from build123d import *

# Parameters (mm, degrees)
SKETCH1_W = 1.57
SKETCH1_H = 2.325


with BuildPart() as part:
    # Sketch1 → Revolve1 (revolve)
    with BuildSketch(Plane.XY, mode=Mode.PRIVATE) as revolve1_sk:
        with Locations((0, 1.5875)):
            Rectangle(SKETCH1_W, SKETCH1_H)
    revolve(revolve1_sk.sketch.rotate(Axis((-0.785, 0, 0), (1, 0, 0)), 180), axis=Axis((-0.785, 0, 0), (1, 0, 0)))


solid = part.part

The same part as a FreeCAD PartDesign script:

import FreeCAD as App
import Part
import Sketcher

V = App.Vector
Q = App.Units.Quantity

doc = App.newDocument("Part")
body = doc.addObject("PartDesign::Body", "Body")

sketch1 = doc.addObject("Sketcher::SketchObject", "Sketch")
body.addObject(sketch1)
sketch1.AttachmentSupport = (doc.XY_Plane, [""])
sketch1.MapMode = "FlatFace"
sketch1.addGeometry([
    Part.LineSegment(V(-0.8, 2.8, 0), V(-0.8, 0.4, 0)),
    Part.LineSegment(V(-0.8, 0.4, 0), V(0.8, 0.4, 0)),
    Part.LineSegment(V(0.8, 0.4, 0), V(0.8, 2.8, 0)),
    Part.LineSegment(V(0.8, 2.8, 0), V(-0.8, 2.8, 0)),
], False)
sketch1.addConstraint([
    Sketcher.Constraint("Coincident", 0, 2, 1, 1),
    Sketcher.Constraint("Coincident", 1, 2, 2, 1),
    Sketcher.Constraint("Coincident", 2, 2, 3, 1),
    Sketcher.Constraint("Coincident", 3, 2, 0, 1),
    Sketcher.Constraint("Vertical", 0),
    Sketcher.Constraint("Horizontal", 1),
    Sketcher.Constraint("Vertical", 2),
    Sketcher.Constraint("Horizontal", 3),
    Sketcher.Constraint("DistanceX", 1, 1, 1, 2, Q("1.57 mm")),
    Sketcher.Constraint("DistanceY", 0, 2, 0, 1, Q("2.325 mm")),
    Sketcher.Constraint("DistanceY", -1, 1, 2, 2, Q("2.75 mm")),
    Sketcher.Constraint("DistanceX", 0, 2, -1, 1, Q("0.785 mm")),
])
revolution = doc.addObject("PartDesign::Revolution", "Revolution")
body.addObject(revolution)
revolution.Profile = sketch1
revolution.ReferenceAxis = (sketch1, ["H_Axis"])
revolution.Angle = 360

doc.recompute()
